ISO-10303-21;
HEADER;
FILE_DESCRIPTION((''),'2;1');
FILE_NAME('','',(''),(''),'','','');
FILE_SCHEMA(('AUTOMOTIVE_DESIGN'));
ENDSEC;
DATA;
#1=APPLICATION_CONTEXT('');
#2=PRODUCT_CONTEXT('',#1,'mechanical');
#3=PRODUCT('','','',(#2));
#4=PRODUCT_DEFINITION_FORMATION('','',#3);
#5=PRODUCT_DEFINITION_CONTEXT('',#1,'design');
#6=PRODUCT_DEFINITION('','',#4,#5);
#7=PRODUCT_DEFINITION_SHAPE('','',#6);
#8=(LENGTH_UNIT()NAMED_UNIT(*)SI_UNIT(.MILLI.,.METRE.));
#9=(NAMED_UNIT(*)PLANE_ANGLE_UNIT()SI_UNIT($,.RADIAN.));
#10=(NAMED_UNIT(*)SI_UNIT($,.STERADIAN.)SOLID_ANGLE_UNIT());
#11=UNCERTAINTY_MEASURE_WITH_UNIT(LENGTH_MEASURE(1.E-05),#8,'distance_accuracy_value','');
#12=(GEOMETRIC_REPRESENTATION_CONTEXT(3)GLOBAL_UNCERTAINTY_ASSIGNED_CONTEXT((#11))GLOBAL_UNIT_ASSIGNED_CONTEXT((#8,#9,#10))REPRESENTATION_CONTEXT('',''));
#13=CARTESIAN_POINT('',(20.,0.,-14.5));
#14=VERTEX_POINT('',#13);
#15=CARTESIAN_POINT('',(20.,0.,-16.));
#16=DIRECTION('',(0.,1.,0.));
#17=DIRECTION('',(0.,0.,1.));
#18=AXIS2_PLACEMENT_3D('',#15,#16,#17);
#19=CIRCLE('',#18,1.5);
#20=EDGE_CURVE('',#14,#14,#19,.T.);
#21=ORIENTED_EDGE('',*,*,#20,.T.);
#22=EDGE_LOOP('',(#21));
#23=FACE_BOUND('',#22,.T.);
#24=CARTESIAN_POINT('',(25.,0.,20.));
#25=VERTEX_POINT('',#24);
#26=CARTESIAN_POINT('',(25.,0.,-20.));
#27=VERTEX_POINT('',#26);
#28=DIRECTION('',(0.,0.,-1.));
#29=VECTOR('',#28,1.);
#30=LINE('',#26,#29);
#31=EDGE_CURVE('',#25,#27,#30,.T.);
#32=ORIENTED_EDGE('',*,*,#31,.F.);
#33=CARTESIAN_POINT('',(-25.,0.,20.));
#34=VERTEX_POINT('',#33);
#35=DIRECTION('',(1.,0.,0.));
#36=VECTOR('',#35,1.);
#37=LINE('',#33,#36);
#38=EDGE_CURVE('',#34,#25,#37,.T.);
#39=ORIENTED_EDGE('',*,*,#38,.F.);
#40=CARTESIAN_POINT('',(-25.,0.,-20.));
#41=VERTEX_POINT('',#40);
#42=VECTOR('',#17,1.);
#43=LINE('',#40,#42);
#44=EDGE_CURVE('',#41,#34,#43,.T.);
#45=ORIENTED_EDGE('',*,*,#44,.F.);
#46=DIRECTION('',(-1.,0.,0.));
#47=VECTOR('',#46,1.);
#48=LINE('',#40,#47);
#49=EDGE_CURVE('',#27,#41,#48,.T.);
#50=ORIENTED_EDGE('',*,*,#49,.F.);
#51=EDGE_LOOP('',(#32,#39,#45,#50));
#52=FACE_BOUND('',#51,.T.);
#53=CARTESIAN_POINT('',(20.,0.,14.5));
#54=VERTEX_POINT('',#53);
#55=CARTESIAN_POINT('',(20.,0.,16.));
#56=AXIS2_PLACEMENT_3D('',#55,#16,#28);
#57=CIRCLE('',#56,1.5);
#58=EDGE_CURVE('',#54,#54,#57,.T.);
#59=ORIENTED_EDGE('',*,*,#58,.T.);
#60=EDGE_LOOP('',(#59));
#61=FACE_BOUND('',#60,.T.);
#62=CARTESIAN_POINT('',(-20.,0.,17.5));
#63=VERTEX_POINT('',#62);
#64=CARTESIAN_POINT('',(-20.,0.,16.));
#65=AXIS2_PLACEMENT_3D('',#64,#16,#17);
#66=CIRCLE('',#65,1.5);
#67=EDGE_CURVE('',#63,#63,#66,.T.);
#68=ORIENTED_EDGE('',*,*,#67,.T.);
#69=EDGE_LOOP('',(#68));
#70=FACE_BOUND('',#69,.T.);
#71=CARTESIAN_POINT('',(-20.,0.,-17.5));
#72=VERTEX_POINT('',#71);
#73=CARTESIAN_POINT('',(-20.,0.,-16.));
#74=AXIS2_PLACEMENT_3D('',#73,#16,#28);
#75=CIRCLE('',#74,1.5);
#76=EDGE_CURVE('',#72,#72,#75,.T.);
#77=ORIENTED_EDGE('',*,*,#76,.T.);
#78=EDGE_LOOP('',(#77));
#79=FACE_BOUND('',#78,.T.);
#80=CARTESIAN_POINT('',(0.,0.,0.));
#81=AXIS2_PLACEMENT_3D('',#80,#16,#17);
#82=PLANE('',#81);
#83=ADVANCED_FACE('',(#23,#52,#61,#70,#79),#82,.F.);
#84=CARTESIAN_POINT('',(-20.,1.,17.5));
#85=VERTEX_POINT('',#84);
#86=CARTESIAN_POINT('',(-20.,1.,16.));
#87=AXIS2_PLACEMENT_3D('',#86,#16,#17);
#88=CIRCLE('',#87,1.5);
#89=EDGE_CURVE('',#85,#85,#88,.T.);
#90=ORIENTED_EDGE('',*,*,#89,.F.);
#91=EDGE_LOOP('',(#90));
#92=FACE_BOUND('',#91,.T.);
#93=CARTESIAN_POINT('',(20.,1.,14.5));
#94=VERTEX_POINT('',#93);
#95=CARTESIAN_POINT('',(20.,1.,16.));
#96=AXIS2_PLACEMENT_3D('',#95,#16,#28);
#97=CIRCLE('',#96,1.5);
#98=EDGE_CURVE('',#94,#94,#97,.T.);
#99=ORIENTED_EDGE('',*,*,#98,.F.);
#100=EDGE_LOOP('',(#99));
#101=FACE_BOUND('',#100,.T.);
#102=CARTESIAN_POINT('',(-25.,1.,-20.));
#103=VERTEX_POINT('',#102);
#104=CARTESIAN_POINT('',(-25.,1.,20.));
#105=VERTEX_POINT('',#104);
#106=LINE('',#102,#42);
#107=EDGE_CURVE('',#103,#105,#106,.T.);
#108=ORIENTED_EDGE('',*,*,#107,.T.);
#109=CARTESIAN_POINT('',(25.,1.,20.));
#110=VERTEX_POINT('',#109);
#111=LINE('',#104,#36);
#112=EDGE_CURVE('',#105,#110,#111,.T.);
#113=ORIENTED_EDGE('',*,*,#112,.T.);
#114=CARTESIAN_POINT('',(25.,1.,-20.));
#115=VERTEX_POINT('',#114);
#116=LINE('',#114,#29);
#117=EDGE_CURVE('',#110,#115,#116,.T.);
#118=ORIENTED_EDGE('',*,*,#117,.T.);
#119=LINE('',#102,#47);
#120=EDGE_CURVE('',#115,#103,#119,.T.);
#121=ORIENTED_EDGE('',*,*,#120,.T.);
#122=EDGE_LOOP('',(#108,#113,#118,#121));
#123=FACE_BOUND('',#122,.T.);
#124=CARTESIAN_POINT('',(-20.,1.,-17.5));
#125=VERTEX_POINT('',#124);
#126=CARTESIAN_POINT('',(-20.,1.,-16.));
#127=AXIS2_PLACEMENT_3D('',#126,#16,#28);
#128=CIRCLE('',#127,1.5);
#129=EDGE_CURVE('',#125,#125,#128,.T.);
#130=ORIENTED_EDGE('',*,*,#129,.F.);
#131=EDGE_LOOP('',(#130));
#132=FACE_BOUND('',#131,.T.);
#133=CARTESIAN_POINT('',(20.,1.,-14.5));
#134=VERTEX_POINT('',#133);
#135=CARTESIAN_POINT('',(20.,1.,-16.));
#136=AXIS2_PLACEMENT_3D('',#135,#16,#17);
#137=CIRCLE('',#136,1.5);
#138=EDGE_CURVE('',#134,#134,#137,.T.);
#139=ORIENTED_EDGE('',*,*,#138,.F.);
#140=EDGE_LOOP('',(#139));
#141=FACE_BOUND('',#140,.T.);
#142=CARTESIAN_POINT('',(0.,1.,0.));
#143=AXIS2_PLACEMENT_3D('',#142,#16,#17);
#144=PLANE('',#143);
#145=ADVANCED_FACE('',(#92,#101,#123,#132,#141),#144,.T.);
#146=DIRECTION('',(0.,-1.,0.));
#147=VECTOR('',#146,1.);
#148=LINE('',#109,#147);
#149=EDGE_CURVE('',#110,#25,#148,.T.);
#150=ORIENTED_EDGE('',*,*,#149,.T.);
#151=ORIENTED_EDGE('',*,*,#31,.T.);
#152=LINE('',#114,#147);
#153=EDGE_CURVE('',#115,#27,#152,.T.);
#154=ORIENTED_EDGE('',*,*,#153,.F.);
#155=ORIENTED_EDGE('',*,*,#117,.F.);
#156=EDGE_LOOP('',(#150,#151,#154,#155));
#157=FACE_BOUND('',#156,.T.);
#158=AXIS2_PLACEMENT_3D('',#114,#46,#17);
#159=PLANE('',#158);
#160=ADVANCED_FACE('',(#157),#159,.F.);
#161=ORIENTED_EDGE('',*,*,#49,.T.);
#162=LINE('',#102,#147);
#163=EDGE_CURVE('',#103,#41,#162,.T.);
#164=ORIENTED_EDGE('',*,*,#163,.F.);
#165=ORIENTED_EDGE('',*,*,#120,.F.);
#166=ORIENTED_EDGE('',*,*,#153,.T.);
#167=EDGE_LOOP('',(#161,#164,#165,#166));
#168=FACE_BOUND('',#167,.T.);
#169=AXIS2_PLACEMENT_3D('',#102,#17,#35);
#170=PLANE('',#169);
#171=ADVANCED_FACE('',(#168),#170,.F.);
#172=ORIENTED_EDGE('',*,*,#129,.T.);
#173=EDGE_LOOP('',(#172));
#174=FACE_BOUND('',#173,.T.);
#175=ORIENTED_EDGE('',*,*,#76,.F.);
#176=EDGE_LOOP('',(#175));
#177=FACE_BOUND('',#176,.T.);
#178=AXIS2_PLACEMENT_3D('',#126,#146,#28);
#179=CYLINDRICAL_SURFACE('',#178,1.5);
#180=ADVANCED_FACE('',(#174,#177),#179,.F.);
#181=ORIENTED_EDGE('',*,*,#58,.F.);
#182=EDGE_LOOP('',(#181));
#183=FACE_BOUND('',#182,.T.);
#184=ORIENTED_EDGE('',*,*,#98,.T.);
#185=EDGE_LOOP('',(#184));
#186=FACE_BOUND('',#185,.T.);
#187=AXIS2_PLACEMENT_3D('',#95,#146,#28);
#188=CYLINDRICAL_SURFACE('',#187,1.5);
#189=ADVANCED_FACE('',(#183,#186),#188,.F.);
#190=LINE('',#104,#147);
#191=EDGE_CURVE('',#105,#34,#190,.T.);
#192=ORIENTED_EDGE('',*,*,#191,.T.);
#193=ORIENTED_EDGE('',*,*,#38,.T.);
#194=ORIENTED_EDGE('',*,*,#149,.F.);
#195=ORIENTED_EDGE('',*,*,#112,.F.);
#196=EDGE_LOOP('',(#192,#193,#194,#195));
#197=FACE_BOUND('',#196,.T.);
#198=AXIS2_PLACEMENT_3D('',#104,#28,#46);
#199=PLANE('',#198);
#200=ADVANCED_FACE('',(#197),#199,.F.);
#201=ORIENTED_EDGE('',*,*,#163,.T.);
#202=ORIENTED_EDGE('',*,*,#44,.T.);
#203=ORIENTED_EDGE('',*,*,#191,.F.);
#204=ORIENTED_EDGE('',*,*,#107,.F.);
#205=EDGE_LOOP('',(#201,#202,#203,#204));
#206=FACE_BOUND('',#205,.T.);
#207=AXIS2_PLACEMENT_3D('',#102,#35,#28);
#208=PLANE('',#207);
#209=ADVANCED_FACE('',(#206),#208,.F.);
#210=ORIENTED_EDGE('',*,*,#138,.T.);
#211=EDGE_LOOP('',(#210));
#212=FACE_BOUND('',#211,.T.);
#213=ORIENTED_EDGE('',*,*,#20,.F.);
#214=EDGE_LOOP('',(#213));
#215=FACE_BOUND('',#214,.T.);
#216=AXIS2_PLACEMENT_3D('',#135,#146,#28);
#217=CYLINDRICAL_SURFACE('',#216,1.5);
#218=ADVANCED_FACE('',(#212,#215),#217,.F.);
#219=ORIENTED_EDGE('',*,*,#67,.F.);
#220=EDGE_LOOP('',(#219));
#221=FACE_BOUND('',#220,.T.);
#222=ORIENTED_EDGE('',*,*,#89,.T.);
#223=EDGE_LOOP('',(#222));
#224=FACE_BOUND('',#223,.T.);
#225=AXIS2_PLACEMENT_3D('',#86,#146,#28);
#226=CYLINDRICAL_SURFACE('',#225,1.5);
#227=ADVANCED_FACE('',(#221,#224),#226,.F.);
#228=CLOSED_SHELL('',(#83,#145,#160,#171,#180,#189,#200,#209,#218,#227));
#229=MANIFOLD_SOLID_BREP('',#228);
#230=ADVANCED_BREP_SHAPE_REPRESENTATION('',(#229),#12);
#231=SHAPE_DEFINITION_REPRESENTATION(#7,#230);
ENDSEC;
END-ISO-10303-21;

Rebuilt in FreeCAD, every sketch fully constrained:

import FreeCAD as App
import Part
import Sketcher
Q = App.Units.Quantity


def add_polygon(sketch, points):
    """Adds a closed chain of lines whose ends are joined by coincident constraints."""
    first, n = sketch.GeometryCount, len(points)
    for a, b in zip(points, points[1:] + points[:1]):
        sketch.addGeometry(Part.LineSegment(App.Vector(*a, 0), App.Vector(*b, 0)), False)
    for i in range(n):
        sketch.addConstraint(Sketcher.Constraint("Coincident", first + i, 2, first + (i + 1) % n, 1))

doc = App.newDocument("Part")
body = doc.addObject("PartDesign::Body", "Body")

# Sketch on XZ plane
sketch1 = body.newObject("Sketcher::SketchObject", "Sketch")
sketch1.AttachmentSupport = (doc.getObject("XZ_Plane"), [""])
sketch1.MapMode = "FlatFace"
add_polygon(sketch1, [(-25, -20), (-25, 20), (25, 20), (25, -20)])  # lines 0-3
sketch1.addGeometry(Part.Circle(App.Vector(-20, 16, 0), App.Vector(0, 0, 1), 1.5), False)  # 4
sketch1.addGeometry(Part.Circle(App.Vector(20, 16, 0), App.Vector(0, 0, 1), 1.5), False)  # 5
sketch1.addGeometry(Part.Circle(App.Vector(-20, -16, 0), App.Vector(0, 0, 1), 1.5), False)  # 6
sketch1.addGeometry(Part.Circle(App.Vector(20, -16, 0), App.Vector(0, 0, 1), 1.5), False)  # 7
sketch1.addConstraint([
    Sketcher.Constraint("Vertical", 0),
    Sketcher.Constraint("Horizontal", 1),
    Sketcher.Constraint("Vertical", 2),
    Sketcher.Constraint("Horizontal", 3),
    Sketcher.Constraint("Equal", 4, 5),
    Sketcher.Constraint("Equal", 5, 6),
    Sketcher.Constraint("Equal", 6, 7),
    Sketcher.Constraint("Symmetric", 5, 3, 6, 3, -1, 1),
    Sketcher.Constraint("Symmetric", 4, 3, 7, 3, -1, 1),
    Sketcher.Constraint("Symmetric", 0, 2, 2, 2, -1, 1),
    Sketcher.Constraint("Symmetric", 4, 3, 5, 3, -2),
    Sketcher.Constraint("Diameter", 4, Q("3 mm")),
    Sketcher.Constraint("DistanceX", 1, 1, 1, 2, Q("50 mm")),
    Sketcher.Constraint("DistanceY", 0, 1, 0, 2, Q("40 mm")),
    Sketcher.Constraint("DistanceX", 4, 3, -1, 1, Q("20 mm")),
    Sketcher.Constraint("DistanceY", -1, 1, 4, 3, Q("16 mm")),
])
pad1 = body.newObject("PartDesign::Pad", "Pad")
pad1.Profile = sketch1
pad1.Length = 1
pad1.Reversed = True

doc.recompute()
